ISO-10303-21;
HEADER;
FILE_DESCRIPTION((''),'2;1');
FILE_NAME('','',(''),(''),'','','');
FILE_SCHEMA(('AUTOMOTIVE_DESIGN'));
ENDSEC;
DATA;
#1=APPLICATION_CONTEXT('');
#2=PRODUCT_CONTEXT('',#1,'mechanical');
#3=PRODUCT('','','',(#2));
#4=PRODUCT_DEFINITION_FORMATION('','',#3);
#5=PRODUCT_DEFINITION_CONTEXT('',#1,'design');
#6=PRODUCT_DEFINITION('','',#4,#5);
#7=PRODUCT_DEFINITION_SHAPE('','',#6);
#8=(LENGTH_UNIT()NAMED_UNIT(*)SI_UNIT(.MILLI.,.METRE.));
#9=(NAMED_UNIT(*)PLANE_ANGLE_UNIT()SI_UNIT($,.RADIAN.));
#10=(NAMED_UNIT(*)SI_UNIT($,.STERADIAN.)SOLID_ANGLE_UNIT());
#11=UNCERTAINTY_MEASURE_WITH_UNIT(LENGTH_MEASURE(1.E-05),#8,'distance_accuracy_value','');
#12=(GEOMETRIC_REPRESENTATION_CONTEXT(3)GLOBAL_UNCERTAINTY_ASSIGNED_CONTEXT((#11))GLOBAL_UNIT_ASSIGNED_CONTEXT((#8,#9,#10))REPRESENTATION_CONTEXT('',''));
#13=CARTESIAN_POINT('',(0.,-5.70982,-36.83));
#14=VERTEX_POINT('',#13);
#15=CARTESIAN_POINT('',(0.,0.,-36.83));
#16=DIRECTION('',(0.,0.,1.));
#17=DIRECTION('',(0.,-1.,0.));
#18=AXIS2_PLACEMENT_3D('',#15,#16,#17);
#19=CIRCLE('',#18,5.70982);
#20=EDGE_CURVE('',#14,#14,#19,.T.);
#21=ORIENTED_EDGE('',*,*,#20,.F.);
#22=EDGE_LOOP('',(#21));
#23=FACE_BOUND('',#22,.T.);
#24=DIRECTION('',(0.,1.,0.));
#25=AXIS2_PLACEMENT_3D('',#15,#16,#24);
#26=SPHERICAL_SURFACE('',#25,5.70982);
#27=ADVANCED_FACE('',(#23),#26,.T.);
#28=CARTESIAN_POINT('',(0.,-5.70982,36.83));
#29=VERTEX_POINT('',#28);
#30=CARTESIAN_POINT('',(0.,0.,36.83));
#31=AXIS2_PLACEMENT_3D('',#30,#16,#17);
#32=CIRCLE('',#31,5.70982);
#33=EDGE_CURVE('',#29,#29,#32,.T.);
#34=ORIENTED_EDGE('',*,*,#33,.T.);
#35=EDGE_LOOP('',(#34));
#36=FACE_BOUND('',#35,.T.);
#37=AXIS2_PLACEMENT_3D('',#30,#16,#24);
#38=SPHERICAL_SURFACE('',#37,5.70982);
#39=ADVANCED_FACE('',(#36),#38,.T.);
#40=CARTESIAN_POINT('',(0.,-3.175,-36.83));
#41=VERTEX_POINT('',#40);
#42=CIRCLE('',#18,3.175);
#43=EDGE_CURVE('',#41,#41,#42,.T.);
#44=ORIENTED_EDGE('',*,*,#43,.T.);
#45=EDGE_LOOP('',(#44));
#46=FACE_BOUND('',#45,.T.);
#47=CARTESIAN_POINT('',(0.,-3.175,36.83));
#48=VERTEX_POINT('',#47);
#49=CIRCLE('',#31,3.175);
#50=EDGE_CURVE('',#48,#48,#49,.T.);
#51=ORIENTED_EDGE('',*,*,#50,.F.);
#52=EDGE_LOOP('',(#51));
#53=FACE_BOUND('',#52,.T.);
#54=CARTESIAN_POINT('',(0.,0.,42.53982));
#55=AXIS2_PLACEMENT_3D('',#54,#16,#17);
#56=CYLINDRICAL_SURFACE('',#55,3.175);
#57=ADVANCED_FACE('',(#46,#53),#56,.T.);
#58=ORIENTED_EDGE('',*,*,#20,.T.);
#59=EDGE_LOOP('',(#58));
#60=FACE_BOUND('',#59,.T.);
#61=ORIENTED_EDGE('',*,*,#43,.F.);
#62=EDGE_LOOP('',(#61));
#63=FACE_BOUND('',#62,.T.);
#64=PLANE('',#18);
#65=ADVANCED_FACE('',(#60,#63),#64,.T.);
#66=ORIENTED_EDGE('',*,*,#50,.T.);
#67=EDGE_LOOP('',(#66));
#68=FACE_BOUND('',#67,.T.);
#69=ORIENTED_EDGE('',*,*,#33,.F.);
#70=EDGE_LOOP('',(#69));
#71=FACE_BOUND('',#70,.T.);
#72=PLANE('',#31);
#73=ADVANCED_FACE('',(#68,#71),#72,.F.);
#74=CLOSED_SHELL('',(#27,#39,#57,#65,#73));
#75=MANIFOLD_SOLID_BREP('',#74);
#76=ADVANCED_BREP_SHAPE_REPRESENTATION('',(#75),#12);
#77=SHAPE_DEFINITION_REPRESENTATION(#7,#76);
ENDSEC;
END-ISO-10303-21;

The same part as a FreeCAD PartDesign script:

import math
import FreeCAD as App
import Part
import Sketcher
Q = App.Units.Quantity

doc = App.newDocument("Part")
params = doc.addObject("Spreadsheet::Sheet", "Params")
for row, (alias, value) in enumerate([
    ("sketch1_height", "2.9 in"),
    ("revolution_angle", "360 deg"),
], start=1):
    params.set(f"A{row}", alias)
    params.set(f"B{row}", "=" + value)
    params.setAlias(f"B{row}", alias)

body = doc.addObject("PartDesign::Body", "Body")

# Sketch on YZ plane
sketch1 = body.newObject("Sketcher::SketchObject", "Sketch")
sketch1.AttachmentSupport = (doc.getObject("YZ_Plane"), [""])
sketch1.MapMode = "FlatFace"
sketch1.addGeometry(Part.LineSegment(App.Vector(3.2, -36.8, 0), App.Vector(3.2, 36.8, 0)), False)
sketch1.addGeometry(Part.LineSegment(App.Vector(3.2, 36.8, 0), App.Vector(5.7, 36.8, 0)), False)
sketch1.addGeometry(Part.ArcOfCircle(Part.Circle(App.Vector(0, 36.8, 0), App.Vector(0, 0, 1), 5.7), math.radians(0), math.radians(90)), False)
sketch1.addGeometry(Part.LineSegment(App.Vector(0, 42.5, 0), App.Vector(0, -42.5, 0)), False)
sketch1.addGeometry(Part.ArcOfCircle(Part.Circle(App.Vector(0, -36.8, 0), App.Vector(0, 0, 1), 5.7), math.radians(-90), math.radians(0)), False)
sketch1.addGeometry(Part.LineSegment(App.Vector(5.7, -36.8, 0), App.Vector(3.2, -36.8, 0)), False)
sketch1.addConstraint(Sketcher.Constraint("Coincident", 0, 2, 1, 1))
sketch1.addConstraint(Sketcher.Constraint("Coincident", 1, 2, 2, 1))
sketch1.addConstraint(Sketcher.Constraint("Coincident", 2, 2, 3, 1))
sketch1.addConstraint(Sketcher.Constraint("Coincident", 3, 2, 4, 1))
sketch1.addConstraint(Sketcher.Constraint("Coincident", 4, 2, 5, 1))
sketch1.addConstraint(Sketcher.Constraint("Coincident", 5, 2, 0, 1))
sketch1.addConstraint(Sketcher.Constraint("Vertical", 0))
sketch1.addConstraint(Sketcher.Constraint("Horizontal", 1))
sketch1.addConstraint(Sketcher.Constraint("Vertical", 3))
sketch1.addConstraint(Sketcher.Constraint("Horizontal", 5))
sketch1.addConstraint(Sketcher.Constraint("Equal", 2, 4))
sketch1.addConstraint(Sketcher.Constraint("Symmetric", 2, 3, 4, 3, -1, 1))
sketch1.addConstraint(Sketcher.Constraint("Symmetric", 1, 2, 4, 2, -1))
sketch1.addConstraint(Sketcher.Constraint("PointOnObject", 2, 2, -2))
sketch1.addConstraint(Sketcher.Constraint("Horizontal", 2, 3, 0, 2))
sketch1.addConstraint(Sketcher.Constraint("DistanceY", 0, 1, 0, 2, Q("2.9 in")))
sketch1.addConstraint(Sketcher.Constraint("DistanceX", -1, 1, 0, 2, Q("0.125 in")))
sketch1.addConstraint(Sketcher.Constraint("Radius", 2, 5.70982))
sketch1.setExpression("Constraints[15]", "Params.sketch1_height")
revolution = body.newObject("PartDesign::Revolution", "Revolution")
revolution.Profile = sketch1
revolution.ReferenceAxis = (sketch1, ["V_Axis"])
revolution.setExpression("Angle", "Params.revolution_angle")

doc.recompute()
